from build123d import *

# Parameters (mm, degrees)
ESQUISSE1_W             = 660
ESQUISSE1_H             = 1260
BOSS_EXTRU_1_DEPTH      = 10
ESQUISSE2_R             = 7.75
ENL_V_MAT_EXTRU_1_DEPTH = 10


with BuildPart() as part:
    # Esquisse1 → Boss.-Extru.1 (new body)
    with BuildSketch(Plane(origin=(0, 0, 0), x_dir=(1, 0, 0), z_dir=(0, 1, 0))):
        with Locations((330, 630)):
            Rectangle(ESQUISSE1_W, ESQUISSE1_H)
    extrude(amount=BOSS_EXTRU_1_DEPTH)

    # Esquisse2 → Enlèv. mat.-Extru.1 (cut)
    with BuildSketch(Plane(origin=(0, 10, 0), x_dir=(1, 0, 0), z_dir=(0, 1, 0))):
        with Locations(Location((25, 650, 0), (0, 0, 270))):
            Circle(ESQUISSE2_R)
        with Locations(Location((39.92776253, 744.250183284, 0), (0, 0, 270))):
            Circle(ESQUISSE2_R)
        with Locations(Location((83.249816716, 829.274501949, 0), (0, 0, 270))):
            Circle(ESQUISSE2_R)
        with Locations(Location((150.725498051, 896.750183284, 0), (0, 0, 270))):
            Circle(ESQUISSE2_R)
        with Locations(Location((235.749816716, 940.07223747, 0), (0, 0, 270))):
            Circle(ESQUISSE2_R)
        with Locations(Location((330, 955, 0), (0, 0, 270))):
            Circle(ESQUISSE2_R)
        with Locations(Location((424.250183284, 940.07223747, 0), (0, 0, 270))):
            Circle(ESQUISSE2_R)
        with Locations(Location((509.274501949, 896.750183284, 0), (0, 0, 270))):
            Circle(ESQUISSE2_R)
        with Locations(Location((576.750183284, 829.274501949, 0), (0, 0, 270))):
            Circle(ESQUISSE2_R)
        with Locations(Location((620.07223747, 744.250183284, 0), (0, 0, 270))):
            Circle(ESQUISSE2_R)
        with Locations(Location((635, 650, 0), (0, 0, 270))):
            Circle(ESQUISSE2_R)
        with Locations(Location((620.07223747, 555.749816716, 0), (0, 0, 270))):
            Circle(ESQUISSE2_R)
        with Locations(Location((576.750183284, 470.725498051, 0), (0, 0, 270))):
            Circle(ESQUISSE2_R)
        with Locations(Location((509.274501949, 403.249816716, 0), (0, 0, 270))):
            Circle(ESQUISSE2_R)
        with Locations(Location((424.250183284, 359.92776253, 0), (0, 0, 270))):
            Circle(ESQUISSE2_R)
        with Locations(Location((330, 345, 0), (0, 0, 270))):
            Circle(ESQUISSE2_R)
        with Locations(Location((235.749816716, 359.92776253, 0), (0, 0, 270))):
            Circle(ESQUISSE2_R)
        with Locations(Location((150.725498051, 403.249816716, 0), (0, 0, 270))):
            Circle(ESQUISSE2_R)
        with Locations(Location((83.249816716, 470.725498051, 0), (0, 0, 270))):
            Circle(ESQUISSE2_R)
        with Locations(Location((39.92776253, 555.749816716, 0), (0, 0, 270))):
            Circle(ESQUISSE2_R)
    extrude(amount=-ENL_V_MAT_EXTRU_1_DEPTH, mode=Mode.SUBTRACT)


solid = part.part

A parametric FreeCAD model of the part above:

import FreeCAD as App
import Part
import Sketcher


def add_polygon(sketch, points):
    """Adds a closed chain of lines whose ends are joined by coincident constraints."""
    first, n = sketch.GeometryCount, len(points)
    for a, b in zip(points, points[1:] + points[:1]):
        sketch.addGeometry(Part.LineSegment(App.Vector(*a, 0), App.Vector(*b, 0)), False)
    for i in range(n):
        sketch.addConstraint(Sketcher.Constraint("Coincident", first + i, 2, first + (i + 1) % n, 1))

doc = App.newDocument("Part")
params = doc.addObject("Spreadsheet::Sheet", "Params")
for row, (alias, value) in enumerate([
    ("sketch1_width", "660 mm"),
    ("sketch1_height", "1260 mm"),
    ("pad1_length", "10 mm"),
    ("sketch2_diameter", "15.5 mm"),
    ("pocket1_length", "10 mm"),
], start=1):
    params.set(f"A{row}", alias)
    params.set(f"B{row}", "=" + value)
    params.setAlias(f"B{row}", alias)

body = doc.addObject("PartDesign::Body", "Body")

# Sketch on XZ plane
sketch1 = body.newObject("Sketcher::SketchObject", "Sketch")
sketch1.AttachmentSupport = (doc.getObject("XZ_Plane"), [""])
sketch1.MapMode = "FlatFace"
add_polygon(sketch1, [(0, -1260), (0, 0), (660, 0), (660, -1260)])  # lines 0-3
sketch1.addConstraint([
    Sketcher.Constraint("Vertical", 0),
    Sketcher.Constraint("Horizontal", 1),
    Sketcher.Constraint("Vertical", 2),
    Sketcher.Constraint("Horizontal", 3),
    Sketcher.Constraint("Coincident", 0, 2, -1, 1),
    Sketcher.Constraint("DistanceX", 1, 1, 1, 2, 660.0),
    Sketcher.Constraint("DistanceY", 0, 1, 0, 2, 1260.0),
])
sketch1.setExpression("Constraints[9]", "Params.sketch1_width")
sketch1.setExpression("Constraints[10]", "Params.sketch1_height")
pad1 = body.newObject("PartDesign::Pad", "Pad")
pad1.Profile = sketch1
pad1.setExpression("Length", "Params.pad1_length")
pad1.Reversed = True

# Sketch on XZ plane
sketch2 = body.newObject("Sketcher::SketchObject", "Sketch001")
sketch2.AttachmentSupport = (doc.getObject("XZ_Plane"), [""])
sketch2.MapMode = "FlatFace"
sketch2.AttachmentOffset = App.Placement(App.Vector(0, 0, -10), App.Rotation())
sketch2.addGeometry([
    Part.Circle(App.Vector(25, -650, 0), App.Vector(0, 0, 1), 8),  # 0
    Part.Circle(App.Vector(40, -744, 0), App.Vector(0, 0, 1), 8),  # 1
    Part.Circle(App.Vector(83, -829, 0), App.Vector(0, 0, 1), 8),  # 2
    Part.Circle(App.Vector(151, -897, 0), App.Vector(0, 0, 1), 8),  # 3
    Part.Circle(App.Vector(236, -940, 0), App.Vector(0, 0, 1), 8),  # 4
    Part.Circle(App.Vector(330, -955, 0), App.Vector(0, 0, 1), 8),  # 5
    Part.Circle(App.Vector(424, -940, 0), App.Vector(0, 0, 1), 8),  # 6
    Part.Circle(App.Vector(509, -897, 0), App.Vector(0, 0, 1), 8),  # 7
    Part.Circle(App.Vector(577, -829, 0), App.Vector(0, 0, 1), 8),  # 8
    Part.Circle(App.Vector(620, -744, 0), App.Vector(0, 0, 1), 8),  # 9
    Part.Circle(App.Vector(635, -650, 0), App.Vector(0, 0, 1), 8),  # 10
    Part.Circle(App.Vector(620, -556, 0), App.Vector(0, 0, 1), 8),  # 11
    Part.Circle(App.Vector(577, -471, 0), App.Vector(0, 0, 1), 8),  # 12
    Part.Circle(App.Vector(509, -403, 0), App.Vector(0, 0, 1), 8),  # 13
    Part.Circle(App.Vector(424, -360, 0), App.Vector(0, 0, 1), 8),  # 14
    Part.Circle(App.Vector(330, -345, 0), App.Vector(0, 0, 1), 8),  # 15
    Part.Circle(App.Vector(236, -360, 0), App.Vector(0, 0, 1), 8),  # 16
    Part.Circle(App.Vector(151, -403, 0), App.Vector(0, 0, 1), 8),  # 17
    Part.Circle(App.Vector(83, -471, 0), App.Vector(0, 0, 1), 8),  # 18
    Part.Circle(App.Vector(40, -556, 0), App.Vector(0, 0, 1), 8),  # 19
], False)
sketch2.addConstraint([
    Sketcher.Constraint("Equal", 0, 1),
    Sketcher.Constraint("Equal", 1, 2),
    Sketcher.Constraint("Equal", 2, 3),
    Sketcher.Constraint("Equal", 3, 4),
    Sketcher.Constraint("Equal", 4, 5),
    Sketcher.Constraint("Equal", 5, 6),
    Sketcher.Constraint("Equal", 6, 7),
    Sketcher.Constraint("Equal", 7, 8),
    Sketcher.Constraint("Equal", 8, 9),
    Sketcher.Constraint("Equal", 9, 10),
    Sketcher.Constraint("Equal", 10, 11),
    Sketcher.Constraint("Equal", 11, 12),
    Sketcher.Constraint("Equal", 12, 13),
    Sketcher.Constraint("Equal", 13, 14),
    Sketcher.Constraint("Equal", 14, 15),
    Sketcher.Constraint("Equal", 15, 16),
    Sketcher.Constraint("Equal", 16, 17),
    Sketcher.Constraint("Equal", 17, 18),
    Sketcher.Constraint("Equal", 18, 19),
    Sketcher.Constraint("Horizontal", 4, 3, 6, 3),
    Sketcher.Constraint("Horizontal", 3, 3, 7, 3),
    Sketcher.Constraint("Horizontal", 2, 3, 8, 3),
    Sketcher.Constraint("Horizontal", 1, 3, 9, 3),
    Sketcher.Constraint("Horizontal", 0, 3, 10, 3),
    Sketcher.Constraint("Horizontal", 14, 3, 16, 3),
    Sketcher.Constraint("Horizontal", 13, 3, 17, 3),
    Sketcher.Constraint("Horizontal", 12, 3, 18, 3),
    Sketcher.Constraint("Horizontal", 11, 3, 19, 3),
    Sketcher.Constraint("Vertical", 9, 3, 11, 3),
    Sketcher.Constraint("Vertical", 8, 3, 12, 3),
    Sketcher.Constraint("Vertical", 7, 3, 13, 3),
    Sketcher.Constraint("Vertical", 6, 3, 14, 3),
    Sketcher.Constraint("Vertical", 5, 3, 15, 3),
    Sketcher.Constraint("Vertical", 4, 3, 16, 3),
    Sketcher.Constraint("Vertical", 3, 3, 17, 3),
    Sketcher.Constraint("Vertical", 2, 3, 18, 3),
    Sketcher.Constraint("Vertical", 1, 3, 19, 3),
    Sketcher.Constraint("Diameter", 0, 15.5),
    Sketcher.Constraint("DistanceX", -1, 1, 0, 3, 25.0),
    Sketcher.Constraint("DistanceY", 0, 3, -1, 1, 650.0),
    Sketcher.Constraint("DistanceX", -1, 1, 5, 3, 330.0),
    Sketcher.Constraint("DistanceY", 5, 3, -1, 1, 955.0),
    Sketcher.Constraint("DistanceX", -1, 1, 10, 3, 635.0),
    Sketcher.Constraint("DistanceY", 15, 3, -1, 1, 345.0),
    Sketcher.Constraint("DistanceY", 3, 3, 1, 3, 152.5),
    Sketcher.Constraint("DistanceX", 2, 3, 4, 3, 152.5),
    Sketcher.Constraint("DistanceX", 6, 3, 8, 3, 152.5),
    Sketcher.Constraint("DistanceY", 11, 3, 13, 3, 152.5),
    Sketcher.Constraint("DistanceY", 2, 3, -1, 1, 829.274502),
    Sketcher.Constraint("DistanceX", -1, 1, 3, 3, 150.725498),
    Sketcher.Constraint("DistanceX", -1, 1, 7, 3, 509.274502),
    Sketcher.Constraint("DistanceY", 12, 3, -1, 1, 470.725498),
    Sketcher.Constraint("DistanceY", 2, 3, 1, 3, 85.024319),
    Sketcher.Constraint("DistanceX", 2, 3, 3, 3, 67.475681),
    Sketcher.Constraint("DistanceX", 1, 3, 6, 3, 384.322421),
    Sketcher.Constraint("DistanceX", 6, 3, 7, 3, 85.024319),
    Sketcher.Constraint("DistanceX", 4, 3, 9, 3, 384.322421),
    Sketcher.Constraint("DistanceY", 6, 3, 11, 3, 384.322421),
    Sketcher.Constraint("DistanceY", 11, 3, 12, 3, 85.024319),
    Sketcher.Constraint("DistanceY", 9, 3, 14, 3, 384.322421),
])
sketch2.setExpression("Constraints[37]", "Params.sketch2_diameter")
pocket1 = body.newObject("PartDesign::Pocket", "Pocket")
pocket1.Profile = sketch2
pocket1.setExpression("Length", "Params.pocket1_length")
pocket1.Reversed = True

doc.recompute()
